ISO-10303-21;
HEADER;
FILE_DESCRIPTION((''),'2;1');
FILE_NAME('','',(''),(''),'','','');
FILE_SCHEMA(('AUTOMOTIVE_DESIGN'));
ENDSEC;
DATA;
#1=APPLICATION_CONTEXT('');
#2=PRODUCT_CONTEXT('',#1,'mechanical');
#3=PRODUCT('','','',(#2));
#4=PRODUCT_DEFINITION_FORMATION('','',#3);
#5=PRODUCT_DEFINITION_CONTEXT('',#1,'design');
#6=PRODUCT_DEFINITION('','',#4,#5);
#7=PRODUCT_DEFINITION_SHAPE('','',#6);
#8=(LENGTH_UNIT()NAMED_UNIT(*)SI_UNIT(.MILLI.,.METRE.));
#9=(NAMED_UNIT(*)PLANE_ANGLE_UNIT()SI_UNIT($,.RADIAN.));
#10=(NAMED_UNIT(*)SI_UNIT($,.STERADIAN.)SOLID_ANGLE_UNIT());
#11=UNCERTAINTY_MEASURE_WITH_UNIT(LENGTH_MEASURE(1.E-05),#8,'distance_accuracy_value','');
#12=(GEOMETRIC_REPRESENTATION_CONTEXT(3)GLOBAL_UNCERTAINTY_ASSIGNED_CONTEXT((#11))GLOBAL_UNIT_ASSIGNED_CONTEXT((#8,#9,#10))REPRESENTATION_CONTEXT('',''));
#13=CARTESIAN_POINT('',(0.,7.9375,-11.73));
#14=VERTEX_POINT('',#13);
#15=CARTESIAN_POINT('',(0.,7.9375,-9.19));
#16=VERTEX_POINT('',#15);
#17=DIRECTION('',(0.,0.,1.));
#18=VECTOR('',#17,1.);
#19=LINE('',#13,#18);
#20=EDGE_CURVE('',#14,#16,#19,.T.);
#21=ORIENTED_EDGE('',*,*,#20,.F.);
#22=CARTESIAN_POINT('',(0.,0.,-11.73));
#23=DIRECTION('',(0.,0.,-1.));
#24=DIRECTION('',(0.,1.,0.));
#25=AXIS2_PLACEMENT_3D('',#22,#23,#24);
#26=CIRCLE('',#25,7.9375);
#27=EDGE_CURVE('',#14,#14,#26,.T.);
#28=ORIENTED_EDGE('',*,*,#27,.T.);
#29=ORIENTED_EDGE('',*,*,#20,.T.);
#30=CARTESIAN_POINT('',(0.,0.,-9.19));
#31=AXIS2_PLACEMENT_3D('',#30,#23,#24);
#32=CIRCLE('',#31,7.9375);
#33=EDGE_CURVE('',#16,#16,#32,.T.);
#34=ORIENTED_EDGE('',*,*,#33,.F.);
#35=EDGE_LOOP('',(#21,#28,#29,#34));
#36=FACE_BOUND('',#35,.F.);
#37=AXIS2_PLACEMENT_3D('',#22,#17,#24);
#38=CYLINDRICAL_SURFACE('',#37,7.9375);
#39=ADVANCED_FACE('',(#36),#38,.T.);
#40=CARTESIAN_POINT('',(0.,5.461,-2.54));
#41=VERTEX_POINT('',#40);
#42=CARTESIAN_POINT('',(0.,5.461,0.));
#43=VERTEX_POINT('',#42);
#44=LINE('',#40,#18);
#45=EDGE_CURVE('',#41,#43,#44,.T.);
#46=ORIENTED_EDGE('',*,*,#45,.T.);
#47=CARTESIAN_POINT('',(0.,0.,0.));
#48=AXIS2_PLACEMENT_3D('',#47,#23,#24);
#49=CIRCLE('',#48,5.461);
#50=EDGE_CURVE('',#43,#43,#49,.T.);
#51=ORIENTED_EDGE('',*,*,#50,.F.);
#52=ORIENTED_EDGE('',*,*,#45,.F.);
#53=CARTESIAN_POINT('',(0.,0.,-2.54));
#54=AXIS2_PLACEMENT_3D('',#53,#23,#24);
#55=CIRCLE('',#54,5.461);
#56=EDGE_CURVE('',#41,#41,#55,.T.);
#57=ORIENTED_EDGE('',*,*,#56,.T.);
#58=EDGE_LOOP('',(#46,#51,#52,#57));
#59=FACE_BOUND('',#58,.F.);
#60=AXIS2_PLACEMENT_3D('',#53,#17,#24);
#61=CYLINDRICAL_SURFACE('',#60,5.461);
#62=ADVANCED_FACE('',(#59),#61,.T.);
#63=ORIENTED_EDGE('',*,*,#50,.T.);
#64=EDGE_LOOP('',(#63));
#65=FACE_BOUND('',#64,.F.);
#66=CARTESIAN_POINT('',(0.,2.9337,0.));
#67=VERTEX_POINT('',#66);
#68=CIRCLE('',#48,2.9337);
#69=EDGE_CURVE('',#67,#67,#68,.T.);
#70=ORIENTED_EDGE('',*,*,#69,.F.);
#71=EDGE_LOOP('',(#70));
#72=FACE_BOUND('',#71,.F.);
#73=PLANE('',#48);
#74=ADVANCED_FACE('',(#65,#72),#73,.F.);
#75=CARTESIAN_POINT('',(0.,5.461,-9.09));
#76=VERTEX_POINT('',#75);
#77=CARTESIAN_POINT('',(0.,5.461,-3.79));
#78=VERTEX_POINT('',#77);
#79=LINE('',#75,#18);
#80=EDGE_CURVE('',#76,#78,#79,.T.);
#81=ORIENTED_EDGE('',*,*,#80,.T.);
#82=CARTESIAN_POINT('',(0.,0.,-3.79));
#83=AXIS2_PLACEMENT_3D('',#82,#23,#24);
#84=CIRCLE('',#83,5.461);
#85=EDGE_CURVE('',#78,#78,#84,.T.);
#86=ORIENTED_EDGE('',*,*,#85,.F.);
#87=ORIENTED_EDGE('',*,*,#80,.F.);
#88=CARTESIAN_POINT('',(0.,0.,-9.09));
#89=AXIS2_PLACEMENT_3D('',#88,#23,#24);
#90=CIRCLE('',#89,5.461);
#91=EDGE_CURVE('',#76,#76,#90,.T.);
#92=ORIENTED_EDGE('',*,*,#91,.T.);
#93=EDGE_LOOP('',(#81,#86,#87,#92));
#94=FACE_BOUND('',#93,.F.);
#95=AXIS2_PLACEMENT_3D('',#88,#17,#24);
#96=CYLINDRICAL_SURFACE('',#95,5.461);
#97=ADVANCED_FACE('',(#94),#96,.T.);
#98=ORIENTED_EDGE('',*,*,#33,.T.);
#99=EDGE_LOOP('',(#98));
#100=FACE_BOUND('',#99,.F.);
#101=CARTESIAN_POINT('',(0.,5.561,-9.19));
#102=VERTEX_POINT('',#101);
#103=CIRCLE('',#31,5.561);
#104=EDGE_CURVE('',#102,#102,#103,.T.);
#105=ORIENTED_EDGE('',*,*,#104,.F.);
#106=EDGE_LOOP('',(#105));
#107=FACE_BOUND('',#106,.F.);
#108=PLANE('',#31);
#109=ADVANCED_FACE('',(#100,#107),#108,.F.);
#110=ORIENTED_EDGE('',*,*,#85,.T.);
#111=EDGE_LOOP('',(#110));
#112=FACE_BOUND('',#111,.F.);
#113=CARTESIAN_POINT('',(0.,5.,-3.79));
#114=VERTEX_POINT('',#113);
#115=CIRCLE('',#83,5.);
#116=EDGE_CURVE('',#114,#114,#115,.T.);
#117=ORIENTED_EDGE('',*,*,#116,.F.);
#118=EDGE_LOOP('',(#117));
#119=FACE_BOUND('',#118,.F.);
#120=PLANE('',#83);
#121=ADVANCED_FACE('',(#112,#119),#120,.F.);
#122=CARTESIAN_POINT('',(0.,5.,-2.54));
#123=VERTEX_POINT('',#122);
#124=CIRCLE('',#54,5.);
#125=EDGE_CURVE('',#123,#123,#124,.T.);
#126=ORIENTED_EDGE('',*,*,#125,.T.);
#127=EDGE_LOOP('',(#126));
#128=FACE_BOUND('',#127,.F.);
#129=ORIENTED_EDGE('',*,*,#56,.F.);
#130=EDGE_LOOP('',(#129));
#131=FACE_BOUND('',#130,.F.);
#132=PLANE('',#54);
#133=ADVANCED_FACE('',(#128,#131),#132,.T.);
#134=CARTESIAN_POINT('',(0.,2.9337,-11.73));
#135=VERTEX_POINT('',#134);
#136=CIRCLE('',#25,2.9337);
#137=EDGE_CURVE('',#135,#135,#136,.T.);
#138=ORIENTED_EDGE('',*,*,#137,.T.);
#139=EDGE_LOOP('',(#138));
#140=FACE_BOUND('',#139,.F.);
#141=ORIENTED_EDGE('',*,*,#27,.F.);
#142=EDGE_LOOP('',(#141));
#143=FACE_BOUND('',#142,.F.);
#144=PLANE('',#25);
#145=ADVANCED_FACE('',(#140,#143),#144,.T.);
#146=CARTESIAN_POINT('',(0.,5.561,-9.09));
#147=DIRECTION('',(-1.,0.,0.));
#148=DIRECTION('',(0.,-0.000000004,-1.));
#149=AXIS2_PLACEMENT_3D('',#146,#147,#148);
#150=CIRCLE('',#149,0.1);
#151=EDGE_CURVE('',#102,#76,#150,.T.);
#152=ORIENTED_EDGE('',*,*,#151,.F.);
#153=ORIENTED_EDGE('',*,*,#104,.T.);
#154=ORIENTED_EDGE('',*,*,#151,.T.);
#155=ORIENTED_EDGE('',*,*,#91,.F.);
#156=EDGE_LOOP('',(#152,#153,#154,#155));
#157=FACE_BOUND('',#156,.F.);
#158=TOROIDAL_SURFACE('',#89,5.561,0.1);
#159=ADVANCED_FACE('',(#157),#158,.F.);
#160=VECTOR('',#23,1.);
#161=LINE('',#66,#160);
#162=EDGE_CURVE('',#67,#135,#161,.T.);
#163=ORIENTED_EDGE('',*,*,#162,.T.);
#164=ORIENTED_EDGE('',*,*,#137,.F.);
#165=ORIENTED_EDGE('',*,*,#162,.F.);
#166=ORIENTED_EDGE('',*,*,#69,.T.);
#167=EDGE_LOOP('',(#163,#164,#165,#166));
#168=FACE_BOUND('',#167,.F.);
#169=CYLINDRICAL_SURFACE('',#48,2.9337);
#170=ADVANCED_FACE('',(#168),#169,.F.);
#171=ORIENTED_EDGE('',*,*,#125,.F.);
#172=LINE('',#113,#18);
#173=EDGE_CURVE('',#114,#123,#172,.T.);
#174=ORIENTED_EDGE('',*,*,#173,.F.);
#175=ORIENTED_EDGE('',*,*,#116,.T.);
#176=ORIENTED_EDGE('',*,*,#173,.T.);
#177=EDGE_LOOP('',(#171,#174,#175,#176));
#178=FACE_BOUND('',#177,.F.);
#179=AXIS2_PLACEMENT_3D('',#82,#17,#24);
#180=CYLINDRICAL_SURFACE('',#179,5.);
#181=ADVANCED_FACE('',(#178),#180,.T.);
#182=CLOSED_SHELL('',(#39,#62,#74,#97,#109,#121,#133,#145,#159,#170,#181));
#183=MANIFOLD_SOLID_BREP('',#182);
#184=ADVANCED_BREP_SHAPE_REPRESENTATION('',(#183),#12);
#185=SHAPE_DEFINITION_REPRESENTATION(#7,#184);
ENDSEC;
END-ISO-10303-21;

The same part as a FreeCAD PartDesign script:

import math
import FreeCAD as App
import Part
import Sketcher
Q = App.Units.Quantity

doc = App.newDocument("Part")
body = doc.addObject("PartDesign::Body", "Body")

# Sketch on YZ plane
sketch1 = body.newObject("Sketcher::SketchObject", "Sketch")
sketch1.AttachmentSupport = (doc.getObject("YZ_Plane"), [""])
sketch1.MapMode = "FlatFace"
sketch1.addGeometry(Part.LineSegment(App.Vector(2.93, 0, 0), App.Vector(2.93, -11.73, 0)), False)
sketch1.addGeometry(Part.LineSegment(App.Vector(2.93, -11.73, 0), App.Vector(7.94, -11.73, 0)), False)
sketch1.addGeometry(Part.LineSegment(App.Vector(7.94, -11.73, 0), App.Vector(7.94, -9.19, 0)), False)
sketch1.addGeometry(Part.LineSegment(App.Vector(7.94, -9.19, 0), App.Vector(5.56, -9.19, 0)), False)
sketch1.addGeometry(Part.ArcOfCircle(Part.Circle(App.Vector(5.56, -9.09, 0), App.Vector(0, 0, 1), 0.1), math.radians(180), math.radians(270)), False)
sketch1.addGeometry(Part.LineSegment(App.Vector(5.46, -9.09, 0), App.Vector(5.46, -3.79, 0)), False)
sketch1.addGeometry(Part.LineSegment(App.Vector(5.46, -3.79, 0), App.Vector(5, -3.79, 0)), False)
sketch1.addGeometry(Part.LineSegment(App.Vector(5, -3.79, 0), App.Vector(5, -2.54, 0)), False)
sketch1.addGeometry(Part.LineSegment(App.Vector(5, -2.54, 0), App.Vector(5.46, -2.54, 0)), False)
sketch1.addGeometry(Part.LineSegment(App.Vector(5.46, -2.54, 0), App.Vector(5.46, 0, 0)), False)
sketch1.addGeometry(Part.LineSegment(App.Vector(5.46, 0, 0), App.Vector(2.93, 0, 0)), False)
sketch1.addConstraint(Sketcher.Constraint("Coincident", 0, 2, 1, 1))
sketch1.addConstraint(Sketcher.Constraint("Coincident", 1, 2, 2, 1))
sketch1.addConstraint(Sketcher.Constraint("Coincident", 2, 2, 3, 1))
sketch1.addConstraint(Sketcher.Constraint("Tangent", 3, 2, 4, 2))
sketch1.addConstraint(Sketcher.Constraint("Tangent", 4, 1, 5, 1))
sketch1.addConstraint(Sketcher.Constraint("Coincident", 5, 2, 6, 1))
sketch1.addConstraint(Sketcher.Constraint("Coincident", 6, 2, 7, 1))
sketch1.addConstraint(Sketcher.Constraint("Coincident", 7, 2, 8, 1))
sketch1.addConstraint(Sketcher.Constraint("Coincident", 8, 2, 9, 1))
sketch1.addConstraint(Sketcher.Constraint("Coincident", 9, 2, 10, 1))
sketch1.addConstraint(Sketcher.Constraint("Coincident", 10, 2, 0, 1))
sketch1.addConstraint(Sketcher.Constraint("Vertical", 0))
sketch1.addConstraint(Sketcher.Constraint("Horizontal", 1))
sketch1.addConstraint(Sketcher.Constraint("Vertical", 2))
sketch1.addConstraint(Sketcher.Constraint("Horizontal", 3))
sketch1.addConstraint(Sketcher.Constraint("Vertical", 5))
sketch1.addConstraint(Sketcher.Constraint("Horizontal", 6))
sketch1.addConstraint(Sketcher.Constraint("Vertical", 7))
sketch1.addConstraint(Sketcher.Constraint("Horizontal", 8))
sketch1.addConstraint(Sketcher.Constraint("Vertical", 9))
sketch1.addConstraint(Sketcher.Constraint("Horizontal", 10))
sketch1.addConstraint(Sketcher.Constraint("PointOnObject", 9, 2, -1))
sketch1.addConstraint(Sketcher.Constraint("Vertical", 5, 2, 8, 2))
sketch1.addConstraint(Sketcher.Constraint("Equal", 2, 9))
sketch1.addConstraint(Sketcher.Constraint("Radius", 4, Q("0.1 mm")))
sketch1.addConstraint(Sketcher.Constraint("DistanceY", 5, 1, 5, 2, Q("5.3 mm")))
sketch1.addConstraint(Sketcher.Constraint("DistanceX", -1, 1, 6, 2, Q("5 mm")))
sketch1.addConstraint(Sketcher.Constraint("DistanceY", 0, 2, 0, 1, Q("11.73 mm")))
sketch1.addConstraint(Sketcher.Constraint("DistanceY", 2, 1, 2, 2, Q("2.54 mm")))
sketch1.addConstraint(Sketcher.Constraint("DistanceX", 6, 2, 6, 1, Q("0.461 mm")))
sketch1.addConstraint(Sketcher.Constraint("DistanceX", 1, 1, 1, 2, Q("5.0038 mm")))
sketch1.addConstraint(Sketcher.Constraint("DistanceX", 3, 2, 3, 1, Q("2.3765 mm")))
revolution = body.newObject("PartDesign::Revolution", "Revolution")
revolution.Profile = sketch1
revolution.ReferenceAxis = (sketch1, ["V_Axis"])
revolution.Angle = 360

doc.recompute()
